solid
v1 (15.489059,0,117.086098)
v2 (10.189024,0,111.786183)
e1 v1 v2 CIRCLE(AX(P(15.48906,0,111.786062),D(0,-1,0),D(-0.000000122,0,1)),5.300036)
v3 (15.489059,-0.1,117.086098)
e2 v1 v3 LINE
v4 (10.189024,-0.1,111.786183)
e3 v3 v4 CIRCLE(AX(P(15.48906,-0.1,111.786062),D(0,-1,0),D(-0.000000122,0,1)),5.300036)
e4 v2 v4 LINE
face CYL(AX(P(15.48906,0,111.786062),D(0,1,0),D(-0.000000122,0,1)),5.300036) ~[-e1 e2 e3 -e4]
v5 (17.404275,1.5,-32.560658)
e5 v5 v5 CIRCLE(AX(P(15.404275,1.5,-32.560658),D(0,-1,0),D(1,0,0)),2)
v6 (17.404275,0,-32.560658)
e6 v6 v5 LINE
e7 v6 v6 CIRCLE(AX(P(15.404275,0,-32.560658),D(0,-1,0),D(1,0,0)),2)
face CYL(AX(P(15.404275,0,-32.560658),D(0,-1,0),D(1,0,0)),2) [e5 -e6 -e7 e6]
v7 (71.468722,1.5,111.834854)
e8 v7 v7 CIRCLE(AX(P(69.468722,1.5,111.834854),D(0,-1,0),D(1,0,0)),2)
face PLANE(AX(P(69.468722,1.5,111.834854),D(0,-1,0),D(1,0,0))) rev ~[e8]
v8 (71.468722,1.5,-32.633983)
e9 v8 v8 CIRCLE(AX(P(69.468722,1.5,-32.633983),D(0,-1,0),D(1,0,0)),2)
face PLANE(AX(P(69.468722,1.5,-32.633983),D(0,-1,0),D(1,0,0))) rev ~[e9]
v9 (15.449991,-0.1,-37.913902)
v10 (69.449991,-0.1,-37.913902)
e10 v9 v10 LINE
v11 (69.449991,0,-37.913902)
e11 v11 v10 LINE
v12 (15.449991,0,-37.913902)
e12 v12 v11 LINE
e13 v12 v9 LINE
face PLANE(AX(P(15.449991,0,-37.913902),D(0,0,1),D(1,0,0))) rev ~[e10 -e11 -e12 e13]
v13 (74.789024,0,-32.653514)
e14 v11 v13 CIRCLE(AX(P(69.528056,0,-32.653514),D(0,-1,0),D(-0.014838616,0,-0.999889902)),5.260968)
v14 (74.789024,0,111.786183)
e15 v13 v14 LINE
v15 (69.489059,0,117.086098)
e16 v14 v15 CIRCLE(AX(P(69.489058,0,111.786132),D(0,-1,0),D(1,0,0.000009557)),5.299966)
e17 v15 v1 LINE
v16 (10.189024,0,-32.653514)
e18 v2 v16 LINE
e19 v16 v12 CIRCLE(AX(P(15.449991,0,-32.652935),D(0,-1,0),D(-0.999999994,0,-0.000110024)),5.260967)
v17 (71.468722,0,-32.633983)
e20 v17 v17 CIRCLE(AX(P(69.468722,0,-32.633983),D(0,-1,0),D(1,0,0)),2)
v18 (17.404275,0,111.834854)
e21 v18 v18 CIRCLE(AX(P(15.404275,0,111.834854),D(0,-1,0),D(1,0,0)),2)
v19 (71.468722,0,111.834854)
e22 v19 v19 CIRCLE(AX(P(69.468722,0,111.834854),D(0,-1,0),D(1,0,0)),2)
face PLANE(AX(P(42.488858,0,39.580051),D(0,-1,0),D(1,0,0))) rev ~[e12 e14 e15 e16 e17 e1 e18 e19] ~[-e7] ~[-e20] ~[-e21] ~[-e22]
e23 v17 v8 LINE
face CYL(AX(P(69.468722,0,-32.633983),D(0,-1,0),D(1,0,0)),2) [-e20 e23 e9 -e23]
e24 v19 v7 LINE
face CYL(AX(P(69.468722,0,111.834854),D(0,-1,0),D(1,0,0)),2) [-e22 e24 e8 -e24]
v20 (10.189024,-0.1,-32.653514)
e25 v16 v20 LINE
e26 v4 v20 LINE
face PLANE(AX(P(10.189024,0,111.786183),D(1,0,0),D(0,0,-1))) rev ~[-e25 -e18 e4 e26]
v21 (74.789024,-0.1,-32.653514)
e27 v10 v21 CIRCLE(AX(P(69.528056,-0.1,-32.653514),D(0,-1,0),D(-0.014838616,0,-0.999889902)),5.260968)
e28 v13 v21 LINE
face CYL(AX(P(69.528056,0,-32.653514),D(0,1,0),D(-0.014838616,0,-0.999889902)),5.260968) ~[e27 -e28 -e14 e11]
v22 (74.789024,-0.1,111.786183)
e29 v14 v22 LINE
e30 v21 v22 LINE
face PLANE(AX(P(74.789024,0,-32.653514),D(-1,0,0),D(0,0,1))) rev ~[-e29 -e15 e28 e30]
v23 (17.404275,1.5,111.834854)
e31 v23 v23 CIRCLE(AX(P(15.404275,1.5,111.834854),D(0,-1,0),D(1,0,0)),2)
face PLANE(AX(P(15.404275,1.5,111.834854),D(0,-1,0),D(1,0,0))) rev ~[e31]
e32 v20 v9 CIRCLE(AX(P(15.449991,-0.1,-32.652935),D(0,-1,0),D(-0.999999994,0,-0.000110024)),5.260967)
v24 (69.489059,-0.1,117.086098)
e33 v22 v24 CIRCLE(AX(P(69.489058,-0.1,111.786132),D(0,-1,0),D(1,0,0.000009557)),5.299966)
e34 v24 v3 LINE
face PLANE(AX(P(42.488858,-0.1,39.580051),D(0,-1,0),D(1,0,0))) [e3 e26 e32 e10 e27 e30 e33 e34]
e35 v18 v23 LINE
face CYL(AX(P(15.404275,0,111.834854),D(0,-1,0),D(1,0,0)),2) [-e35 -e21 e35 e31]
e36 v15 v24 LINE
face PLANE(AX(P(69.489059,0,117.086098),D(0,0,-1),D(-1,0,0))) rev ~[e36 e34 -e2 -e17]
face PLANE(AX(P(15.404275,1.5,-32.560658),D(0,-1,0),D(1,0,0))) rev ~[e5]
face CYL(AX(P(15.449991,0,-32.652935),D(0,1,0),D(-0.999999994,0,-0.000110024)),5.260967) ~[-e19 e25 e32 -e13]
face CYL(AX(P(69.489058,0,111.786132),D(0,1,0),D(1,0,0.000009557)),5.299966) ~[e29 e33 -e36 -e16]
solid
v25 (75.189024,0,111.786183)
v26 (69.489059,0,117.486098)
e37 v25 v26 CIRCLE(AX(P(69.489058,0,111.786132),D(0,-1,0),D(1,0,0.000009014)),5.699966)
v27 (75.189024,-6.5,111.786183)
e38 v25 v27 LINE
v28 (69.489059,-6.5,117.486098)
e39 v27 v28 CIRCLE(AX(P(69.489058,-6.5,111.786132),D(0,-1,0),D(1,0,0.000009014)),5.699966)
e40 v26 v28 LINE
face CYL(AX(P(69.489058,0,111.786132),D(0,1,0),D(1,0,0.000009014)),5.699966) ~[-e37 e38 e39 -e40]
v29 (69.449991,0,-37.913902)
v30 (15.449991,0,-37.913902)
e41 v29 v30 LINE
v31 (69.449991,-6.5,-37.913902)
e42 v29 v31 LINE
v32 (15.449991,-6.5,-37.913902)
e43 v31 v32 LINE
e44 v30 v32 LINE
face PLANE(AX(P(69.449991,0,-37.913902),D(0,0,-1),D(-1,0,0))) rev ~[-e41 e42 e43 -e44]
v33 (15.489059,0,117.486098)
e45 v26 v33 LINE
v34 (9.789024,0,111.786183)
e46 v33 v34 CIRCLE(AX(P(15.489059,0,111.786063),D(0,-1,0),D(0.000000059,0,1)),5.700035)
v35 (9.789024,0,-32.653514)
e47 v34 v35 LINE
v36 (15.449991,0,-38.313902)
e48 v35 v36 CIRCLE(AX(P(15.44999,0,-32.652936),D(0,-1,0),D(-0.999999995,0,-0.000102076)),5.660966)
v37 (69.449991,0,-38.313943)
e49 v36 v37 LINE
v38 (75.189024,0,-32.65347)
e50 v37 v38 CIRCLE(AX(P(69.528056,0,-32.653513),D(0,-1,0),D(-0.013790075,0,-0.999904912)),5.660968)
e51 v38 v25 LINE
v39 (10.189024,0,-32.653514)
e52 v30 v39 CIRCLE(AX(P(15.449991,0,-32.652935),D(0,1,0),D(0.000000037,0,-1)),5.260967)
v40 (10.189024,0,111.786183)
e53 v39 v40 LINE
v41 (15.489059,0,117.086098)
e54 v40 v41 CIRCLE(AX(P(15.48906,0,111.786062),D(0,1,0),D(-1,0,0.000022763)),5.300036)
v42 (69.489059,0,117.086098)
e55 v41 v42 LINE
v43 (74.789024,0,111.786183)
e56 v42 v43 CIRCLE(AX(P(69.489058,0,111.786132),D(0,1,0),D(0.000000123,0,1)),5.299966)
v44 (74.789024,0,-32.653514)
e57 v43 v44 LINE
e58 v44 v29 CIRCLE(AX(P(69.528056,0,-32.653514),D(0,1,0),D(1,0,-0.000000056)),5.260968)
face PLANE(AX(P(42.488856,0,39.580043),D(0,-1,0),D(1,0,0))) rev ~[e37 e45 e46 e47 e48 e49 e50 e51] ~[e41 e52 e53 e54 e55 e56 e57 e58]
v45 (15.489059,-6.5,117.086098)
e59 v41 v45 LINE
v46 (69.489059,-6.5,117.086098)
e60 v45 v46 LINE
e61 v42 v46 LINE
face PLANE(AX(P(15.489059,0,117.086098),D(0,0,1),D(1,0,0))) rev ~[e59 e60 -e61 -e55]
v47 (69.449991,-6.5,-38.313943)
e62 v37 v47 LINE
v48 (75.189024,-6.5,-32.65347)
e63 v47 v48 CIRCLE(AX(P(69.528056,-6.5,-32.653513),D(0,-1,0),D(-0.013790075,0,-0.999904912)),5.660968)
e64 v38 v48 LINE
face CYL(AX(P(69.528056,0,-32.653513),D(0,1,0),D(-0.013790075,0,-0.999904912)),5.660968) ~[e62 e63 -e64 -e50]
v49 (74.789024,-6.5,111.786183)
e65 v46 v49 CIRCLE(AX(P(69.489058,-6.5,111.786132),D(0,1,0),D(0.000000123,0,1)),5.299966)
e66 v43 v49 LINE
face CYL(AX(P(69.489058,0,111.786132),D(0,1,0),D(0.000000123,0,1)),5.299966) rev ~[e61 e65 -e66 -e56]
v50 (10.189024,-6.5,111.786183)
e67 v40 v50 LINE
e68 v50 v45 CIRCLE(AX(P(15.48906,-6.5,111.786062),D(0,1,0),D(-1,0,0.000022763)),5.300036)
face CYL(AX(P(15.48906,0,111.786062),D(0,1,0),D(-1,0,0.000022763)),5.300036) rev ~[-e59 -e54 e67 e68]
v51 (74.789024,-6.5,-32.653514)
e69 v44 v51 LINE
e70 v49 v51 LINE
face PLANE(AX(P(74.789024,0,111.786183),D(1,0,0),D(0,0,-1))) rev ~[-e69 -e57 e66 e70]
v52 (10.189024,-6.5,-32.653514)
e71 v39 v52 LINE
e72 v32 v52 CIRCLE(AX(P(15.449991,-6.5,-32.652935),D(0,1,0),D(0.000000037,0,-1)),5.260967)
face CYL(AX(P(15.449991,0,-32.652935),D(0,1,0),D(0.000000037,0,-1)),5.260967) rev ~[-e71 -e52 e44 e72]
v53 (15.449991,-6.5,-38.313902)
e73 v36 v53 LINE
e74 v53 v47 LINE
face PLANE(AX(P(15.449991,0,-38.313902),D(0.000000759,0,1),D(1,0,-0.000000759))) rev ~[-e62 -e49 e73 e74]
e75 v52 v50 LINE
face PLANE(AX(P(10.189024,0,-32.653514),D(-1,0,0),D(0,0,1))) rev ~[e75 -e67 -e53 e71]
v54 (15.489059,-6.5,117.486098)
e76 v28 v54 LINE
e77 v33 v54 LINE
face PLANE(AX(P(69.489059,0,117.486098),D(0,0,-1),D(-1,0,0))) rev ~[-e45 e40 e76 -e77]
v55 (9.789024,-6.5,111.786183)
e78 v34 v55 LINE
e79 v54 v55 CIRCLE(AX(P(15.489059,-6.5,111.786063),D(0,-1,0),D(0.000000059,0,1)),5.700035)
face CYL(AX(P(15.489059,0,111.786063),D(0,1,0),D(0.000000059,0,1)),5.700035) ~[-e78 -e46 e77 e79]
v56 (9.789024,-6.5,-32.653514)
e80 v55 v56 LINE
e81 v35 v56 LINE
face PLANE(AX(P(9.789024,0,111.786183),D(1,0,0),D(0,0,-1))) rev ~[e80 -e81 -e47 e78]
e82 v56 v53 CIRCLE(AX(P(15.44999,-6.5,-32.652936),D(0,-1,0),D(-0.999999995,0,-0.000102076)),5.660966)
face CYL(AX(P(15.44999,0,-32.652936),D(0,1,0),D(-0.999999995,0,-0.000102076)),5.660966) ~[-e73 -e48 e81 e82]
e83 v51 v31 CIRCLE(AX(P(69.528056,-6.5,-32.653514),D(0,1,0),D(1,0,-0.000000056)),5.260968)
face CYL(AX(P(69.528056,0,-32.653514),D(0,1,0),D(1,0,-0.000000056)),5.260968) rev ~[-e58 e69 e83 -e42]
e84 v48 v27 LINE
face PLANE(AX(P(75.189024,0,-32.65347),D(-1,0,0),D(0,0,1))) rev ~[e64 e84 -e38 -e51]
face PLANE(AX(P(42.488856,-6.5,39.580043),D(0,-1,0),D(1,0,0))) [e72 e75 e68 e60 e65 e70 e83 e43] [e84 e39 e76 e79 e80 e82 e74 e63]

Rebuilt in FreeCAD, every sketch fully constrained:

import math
import FreeCAD as App
import Part
import Sketcher
from FreeCAD import Vector
Q = App.Units.Quantity

doc = App.newDocument("Part")
body = doc.addObject("PartDesign::Body", "Body")

# Sketch on XZ plane
sketch1 = body.newObject("Sketcher::SketchObject", "Sketch")
sketch1.AttachmentSupport = (doc.getObject("XZ_Plane"), [""])
sketch1.MapMode = "FlatFace"
sketch1.addGeometry(Part.LineSegment(Vector(9.789024, 111.786183, 0), Vector(9.789024, -32.653514, 0)), False)
sketch1.addGeometry(Part.ArcOfCircle(Part.Circle(Vector(15.44999, -32.652936, 0), Vector(0, 0, 1), 5.660966), math.radians(-179.994151), math.radians(-89.999988)), False)
sketch1.addGeometry(Part.LineSegment(Vector(15.449991, -38.313902, 0), Vector(69.449991, -38.313943, 0)), False)
sketch1.addGeometry(Part.ArcOfCircle(Part.Circle(Vector(69.528056, -32.653513, 0), Vector(0, 0, 1), 5.660968), math.radians(-90.790138), math.radians(0.00044)), False)
sketch1.addGeometry(Part.LineSegment(Vector(75.189024, -32.65347, 0), Vector(75.189024, 111.786183, 0)), False)
sketch1.addGeometry(Part.ArcOfCircle(Part.Circle(Vector(69.489058, 111.786132, 0), Vector(0, 0, 1), 5.699966), math.radians(0.000516), math.radians(89.999986)), False)
sketch1.addGeometry(Part.LineSegment(Vector(69.489059, 117.486098, 0), Vector(15.489059, 117.486098, 0)), False)
sketch1.addGeometry(Part.ArcOfCircle(Part.Circle(Vector(15.489059, 111.786063, 0), Vector(0, 0, 1), 5.700035), math.radians(89.999997), math.radians(179.998797)), False)
sketch1.addGeometry(Part.ArcOfCircle(Part.Circle(Vector(15.449991, -32.652935, 0), Vector(0, 0, 1), 5.260967), math.radians(-179.993696), math.radians(-89.999998)), False)
sketch1.addGeometry(Part.LineSegment(Vector(10.189024, -32.653514, 0), Vector(10.189024, 111.786183, 0)), False)
sketch1.addGeometry(Part.ArcOfCircle(Part.Circle(Vector(15.48906, 111.786062, 0), Vector(0, 0, 1), 5.300036), math.radians(90.000007), math.radians(179.998696)), False)
sketch1.addGeometry(Part.LineSegment(Vector(15.489059, 117.086098, 0), Vector(69.489059, 117.086098, 0)), False)
sketch1.addGeometry(Part.ArcOfCircle(Part.Circle(Vector(69.489058, 111.786132, 0), Vector(0, 0, 1), 5.299966), math.radians(0.000548), math.radians(89.999993)), False)
sketch1.addGeometry(Part.LineSegment(Vector(74.789024, 111.786183, 0), Vector(74.789024, -32.653514, 0)), False)
sketch1.addGeometry(Part.ArcOfCircle(Part.Circle(Vector(69.528056, -32.653514, 0), Vector(0, 0, 1), 5.260968), math.radians(-90.850221), math.radians(-0.000003)), False)
sketch1.addGeometry(Part.LineSegment(Vector(69.449991, -37.913902, 0), Vector(15.449991, -37.913902, 0)), False)
sketch1.addConstraint(Sketcher.Constraint("Coincident", 0, 2, 1, 1))
sketch1.addConstraint(Sketcher.Constraint("Tangent", 1, 2, 2, 1))
sketch1.addConstraint(Sketcher.Constraint("Coincident", 2, 2, 3, 1))
sketch1.addConstraint(Sketcher.Constraint("Coincident", 3, 2, 4, 1))
sketch1.addConstraint(Sketcher.Constraint("Coincident", 4, 2, 5, 1))
sketch1.addConstraint(Sketcher.Constraint("Tangent", 5, 2, 6, 1))
sketch1.addConstraint(Sketcher.Constraint("Tangent", 6, 2, 7, 1))
sketch1.addConstraint(Sketcher.Constraint("Coincident", 7, 2, 0, 1))
sketch1.addConstraint(Sketcher.Constraint("Coincident", 8, 1, 9, 1))
sketch1.addConstraint(Sketcher.Constraint("Coincident", 9, 2, 10, 2))
sketch1.addConstraint(Sketcher.Constraint("Tangent", 10, 1, 11, 1))
sketch1.addConstraint(Sketcher.Constraint("Tangent", 11, 2, 12, 2))
sketch1.addConstraint(Sketcher.Constraint("Coincident", 12, 1, 13, 1))
sketch1.addConstraint(Sketcher.Constraint("Tangent", 13, 2, 14, 2))
sketch1.addConstraint(Sketcher.Constraint("Coincident", 14, 1, 15, 1))
sketch1.addConstraint(Sketcher.Constraint("Tangent", 15, 2, 8, 2))
sketch1.addConstraint(Sketcher.Constraint("Vertical", 0))
sketch1.addConstraint(Sketcher.Constraint("Vertical", 4))
sketch1.addConstraint(Sketcher.Constraint("Horizontal", 6))
sketch1.addConstraint(Sketcher.Constraint("Vertical", 9))
sketch1.addConstraint(Sketcher.Constraint("Horizontal", 11))
sketch1.addConstraint(Sketcher.Constraint("Vertical", 13))
sketch1.addConstraint(Sketcher.Constraint("Horizontal", 15))
sketch1.addConstraint(Sketcher.Constraint("Coincident", 8, 3, 1, 3))
sketch1.addConstraint(Sketcher.Constraint("Coincident", 10, 3, 7, 3))
sketch1.addConstraint(Sketcher.Constraint("Coincident", 12, 3, 5, 3))
sketch1.addConstraint(Sketcher.Constraint("Coincident", 14, 3, 3, 3))
sketch1.addConstraint(Sketcher.Constraint("Equal", 1, 3))
sketch1.addConstraint(Sketcher.Constraint("Horizontal", 14, 3, 0, 2))
sketch1.addConstraint(Sketcher.Constraint("Horizontal", 4, 2, 7, 2))
sketch1.addConstraint(Sketcher.Constraint("Horizontal", 0, 2, 8, 1))
sketch1.addConstraint(Sketcher.Constraint("Horizontal", 7, 2, 9, 2))
sketch1.addConstraint(Sketcher.Constraint("Horizontal", 9, 2, 12, 1))
sketch1.addConstraint(Sketcher.Constraint("Vertical", 2, 2, 14, 1))
sketch1.addConstraint(Sketcher.Constraint("Equal", 11, 15))
sketch1.addConstraint(Sketcher.Constraint("DistanceX", 6, 2, 6, 1, Q("54 mm")))
sketch1.addConstraint(Sketcher.Constraint("DistanceX", 0, 2, 8, 1, Q("0.4 mm")))
sketch1.addConstraint(Sketcher.Constraint("Radius", 1, Q("5.660966 mm")))
sketch1.addConstraint(Sketcher.Constraint("Radius", 5, Q("5.699966 mm")))
sketch1.addConstraint(Sketcher.Constraint("Radius", 7, Q("5.700035 mm")))
sketch1.addConstraint(Sketcher.Constraint("DistanceY", 1, 3, 7, 3, Q("144.438999 mm")))
sketch1.addConstraint(Sketcher.Constraint("DistanceY", 1, 2, -1, 1, Q("38.313902 mm")))
sketch1.addConstraint(Sketcher.Constraint("DistanceY", 0, 2, 0, 1, Q("144.439697 mm")))
sketch1.addConstraint(Sketcher.Constraint("DistanceY", 4, 1, 4, 2, Q("144.439653 mm")))
sketch1.addConstraint(Sketcher.Constraint("DistanceX", -1, 1, 1, 3, Q("15.44999 mm")))
pad1 = body.newObject("PartDesign::Pad", "Pad")
pad1.Profile = sketch1
pad1.Length = 6.5
body2 = doc.addObject("PartDesign::Body", "Body001")

# Sketch on XZ plane
sketch2 = body2.newObject("Sketcher::SketchObject", "Sketch001")
sketch2.AttachmentSupport = (doc.getObject("XZ_Plane001"), [""])
sketch2.MapMode = "FlatFace"
sketch2.addGeometry(Part.ArcOfCircle(Part.Circle(Vector(15.48906, 111.786062, 0), Vector(0, 0, 1), 5.300036), math.radians(90.000007), math.radians(179.998696)), False)
sketch2.addGeometry(Part.LineSegment(Vector(10.189024, 111.786183, 0), Vector(10.189024, -32.653514, 0)), False)
sketch2.addGeometry(Part.ArcOfCircle(Part.Circle(Vector(15.449991, -32.652935, 0), Vector(0, 0, 1), 5.260967), math.radians(-179.993696), math.radians(-89.999998)), False)
sketch2.addGeometry(Part.LineSegment(Vector(15.449991, -37.913902, 0), Vector(69.449991, -37.913902, 0)), False)
sketch2.addGeometry(Part.ArcOfCircle(Part.Circle(Vector(69.528056, -32.653514, 0), Vector(0, 0, 1), 5.260968), math.radians(-90.850221), math.radians(-0.000003)), False)
sketch2.addGeometry(Part.LineSegment(Vector(74.789024, -32.653514, 0), Vector(74.789024, 111.786183, 0)), False)
sketch2.addGeometry(Part.ArcOfCircle(Part.Circle(Vector(69.489058, 111.786132, 0), Vector(0, 0, 1), 5.299966), math.radians(0.000548), math.radians(89.999993)), False)
sketch2.addGeometry(Part.LineSegment(Vector(69.489059, 117.086098, 0), Vector(15.489059, 117.086098, 0)), False)
sketch2.addConstraint(Sketcher.Constraint("Coincident", 0, 2, 1, 1))
sketch2.addConstraint(Sketcher.Constraint("Coincident", 1, 2, 2, 1))
sketch2.addConstraint(Sketcher.Constraint("Tangent", 2, 2, 3, 1))
sketch2.addConstraint(Sketcher.Constraint("Coincident", 3, 2, 4, 1))
sketch2.addConstraint(Sketcher.Constraint("Tangent", 4, 2, 5, 1))
sketch2.addConstraint(Sketcher.Constraint("Coincident", 5, 2, 6, 1))
sketch2.addConstraint(Sketcher.Constraint("Tangent", 6, 2, 7, 1))
sketch2.addConstraint(Sketcher.Constraint("Tangent", 7, 2, 0, 1))
sketch2.addConstraint(Sketcher.Constraint("Vertical", 1))
sketch2.addConstraint(Sketcher.Constraint("Horizontal", 3))
sketch2.addConstraint(Sketcher.Constraint("Vertical", 5))
sketch2.addConstraint(Sketcher.Constraint("Horizontal", 7))
sketch2.addConstraint(Sketcher.Constraint("Equal", 2, 4))
sketch2.addConstraint(Sketcher.Constraint("Horizontal", 4, 3, 1, 2))
sketch2.addConstraint(Sketcher.Constraint("Horizontal", 0, 2, 5, 2))
sketch2.addConstraint(Sketcher.Constraint("Equal", 3, 7))
sketch2.addConstraint(Sketcher.Constraint("DistanceX", 3, 1, 3, 2, Q("54 mm")))
sketch2.addConstraint(Sketcher.Constraint("DistanceX", 1, 2, 4, 2, Q("64.6 mm")))
sketch2.addConstraint(Sketcher.Constraint("Radius", 0, Q("5.300036 mm")))
sketch2.addConstraint(Sketcher.Constraint("Radius", 2, Q("5.260967 mm")))
sketch2.addConstraint(Sketcher.Constraint("DistanceY", -1, 1, 7, 2, Q("117.086098 mm")))
sketch2.addConstraint(Sketcher.Constraint("DistanceY", 1, 2, 1, 1, Q("144.439697 mm")))
sketch2.addConstraint(Sketcher.Constraint("DistanceX", -1, 1, 0, 3, Q("15.48906 mm")))
sketch2.addConstraint(Sketcher.Constraint("DistanceY", 0, 3, 0, 2, Q("0.000121 mm")))
pad2 = body2.newObject("PartDesign::Pad", "Pad001")
pad2.Profile = sketch2
pad2.Length = 0.1

# Sketch on XZ plane
sketch3 = body2.newObject("Sketcher::SketchObject", "Sketch002")
sketch3.AttachmentSupport = (doc.getObject("XZ_Plane001"), [""])
sketch3.MapMode = "FlatFace"
sketch3.addGeometry(Part.Circle(Vector(15.404275, -32.560658, 0), Vector(0, 0, 1), 2), False)
sketch3.addGeometry(Part.Circle(Vector(69.468722, -32.633983, 0), Vector(0, 0, 1), 2), False)
sketch3.addGeometry(Part.Circle(Vector(69.468722, 111.834854, 0), Vector(0, 0, 1), 2), False)
sketch3.addGeometry(Part.Circle(Vector(15.404275, 111.834854, 0), Vector(0, 0, 1), 2), False)
sketch3.addConstraint(Sketcher.Constraint("Equal", 0, 1))
sketch3.addConstraint(Sketcher.Constraint("Equal", 1, 2))
sketch3.addConstraint(Sketcher.Constraint("Equal", 2, 3))
sketch3.addConstraint(Sketcher.Constraint("Horizontal", 2, 3, 3, 3))
sketch3.addConstraint(Sketcher.Constraint("Vertical", 1, 3, 2, 3))
sketch3.addConstraint(Sketcher.Constraint("Vertical", 0, 3, 3, 3))
sketch3.addConstraint(Sketcher.Constraint("Diameter", 0, Q("4 mm")))
sketch3.addConstraint(Sketcher.Constraint("DistanceX", -1, 1, 1, 3, Q("69.468722 mm")))
sketch3.addConstraint(Sketcher.Constraint("DistanceY", 0, 3, 2, 3, Q("144.395512 mm")))
sketch3.addConstraint(Sketcher.Constraint("DistanceX", -1, 1, 0, 3, Q("15.404275 mm")))
sketch3.addConstraint(Sketcher.Constraint("DistanceY", 0, 3, -1, 1, Q("32.560658 mm")))
sketch3.addConstraint(Sketcher.Constraint("DistanceY", 1, 3, -1, 1, Q("32.633983 mm")))
pad3 = body2.newObject("PartDesign::Pad", "Pad002")
pad3.Profile = sketch3
pad3.Length = 1.5
pad3.Reversed = True

doc.recompute()
